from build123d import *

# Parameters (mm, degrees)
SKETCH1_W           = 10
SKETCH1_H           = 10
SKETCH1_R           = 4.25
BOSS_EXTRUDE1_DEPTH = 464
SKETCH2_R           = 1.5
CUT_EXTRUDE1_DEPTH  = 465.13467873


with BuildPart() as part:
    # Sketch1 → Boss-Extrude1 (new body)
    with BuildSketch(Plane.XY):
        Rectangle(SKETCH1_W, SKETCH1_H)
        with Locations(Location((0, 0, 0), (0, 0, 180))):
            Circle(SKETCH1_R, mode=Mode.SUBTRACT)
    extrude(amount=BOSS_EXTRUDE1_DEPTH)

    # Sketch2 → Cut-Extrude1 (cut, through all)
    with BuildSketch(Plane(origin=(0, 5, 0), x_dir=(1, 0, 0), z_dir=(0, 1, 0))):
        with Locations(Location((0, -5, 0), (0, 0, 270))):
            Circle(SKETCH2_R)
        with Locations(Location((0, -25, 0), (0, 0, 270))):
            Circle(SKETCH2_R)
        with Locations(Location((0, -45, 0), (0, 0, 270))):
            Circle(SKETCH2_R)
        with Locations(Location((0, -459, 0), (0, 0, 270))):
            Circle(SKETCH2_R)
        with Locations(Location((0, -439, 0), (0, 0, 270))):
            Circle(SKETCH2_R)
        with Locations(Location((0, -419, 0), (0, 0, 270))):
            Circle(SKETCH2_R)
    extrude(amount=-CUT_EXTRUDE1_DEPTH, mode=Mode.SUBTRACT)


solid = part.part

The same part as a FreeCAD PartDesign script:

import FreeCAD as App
import Part
import Sketcher

V = App.Vector
Q = App.Units.Quantity

doc = App.newDocument("Part")
body = doc.addObject("PartDesign::Body", "Body")

# Sketch on XY plane
sketch1 = body.newObject("Sketcher::SketchObject", "Sketch")
sketch1.AttachmentSupport = (doc.getObject("XY_Plane"), [""])
sketch1.MapMode = "FlatFace"
sketch1.addGeometry(Part.LineSegment(V(-5, 5, 0), V(-5, -5, 0)), False)
sketch1.addGeometry(Part.LineSegment(V(-5, -5, 0), V(5, -5, 0)), False)
sketch1.addGeometry(Part.LineSegment(V(5, -5, 0), V(5, 5, 0)), False)
sketch1.addGeometry(Part.LineSegment(V(5, 5, 0), V(-5, 5, 0)), False)
sketch1.addGeometry(Part.Circle(V(0, 0, 0), V(0, 0, 1), 4.2), False)
sketch1.addConstraint(Sketcher.Constraint("Coincident", 0, 2, 1, 1))
sketch1.addConstraint(Sketcher.Constraint("Coincident", 1, 2, 2, 1))
sketch1.addConstraint(Sketcher.Constraint("Coincident", 2, 2, 3, 1))
sketch1.addConstraint(Sketcher.Constraint("Coincident", 3, 2, 0, 1))
sketch1.addConstraint(Sketcher.Constraint("Vertical", 0))
sketch1.addConstraint(Sketcher.Constraint("Horizontal", 1))
sketch1.addConstraint(Sketcher.Constraint("Vertical", 2))
sketch1.addConstraint(Sketcher.Constraint("Horizontal", 3))
sketch1.addConstraint(Sketcher.Constraint("Coincident", 4, 3, -1, 1))
sketch1.addConstraint(Sketcher.Constraint("Symmetric", 0, 2, 2, 2, -1, 1))
sketch1.addConstraint(Sketcher.Constraint("Equal", 3, 0))
sketch1.addConstraint(Sketcher.Constraint("Diameter", 4, Q("8.5 mm")))
sketch1.addConstraint(Sketcher.Constraint("DistanceX", 1, 1, 1, 2, Q("10 mm")))
pad1 = body.newObject("PartDesign::Pad", "Pad")
pad1.Profile = sketch1
pad1.Length = 464

# Sketch on XZ plane
sketch2 = body.newObject("Sketcher::SketchObject", "Sketch001")
sketch2.AttachmentSupport = (doc.getObject("XZ_Plane"), [""])
sketch2.MapMode = "FlatFace"
sketch2.AttachmentOffset = App.Placement(V(0, 0, -5), App.Rotation())
sketch2.addGeometry(Part.Circle(V(0, 5, 0), V(0, 0, 1), 1.5), False)
sketch2.addGeometry(Part.Circle(V(0, 25, 0), V(0, 0, 1), 1.5), False)
sketch2.addGeometry(Part.Circle(V(0, 45, 0), V(0, 0, 1), 1.5), False)
sketch2.addGeometry(Part.Circle(V(0, 459, 0), V(0, 0, 1), 1.5), False)
sketch2.addGeometry(Part.Circle(V(0, 439, 0), V(0, 0, 1), 1.5), False)
sketch2.addGeometry(Part.Circle(V(0, 419, 0), V(0, 0, 1), 1.5), False)
sketch2.addConstraint(Sketcher.Constraint("Equal", 0, 1))
sketch2.addConstraint(Sketcher.Constraint("Equal", 1, 2))
sketch2.addConstraint(Sketcher.Constraint("Equal", 2, 3))
sketch2.addConstraint(Sketcher.Constraint("Equal", 3, 4))
sketch2.addConstraint(Sketcher.Constraint("Equal", 4, 5))
sketch2.addConstraint(Sketcher.Constraint("PointOnObject", 0, 3, -2))
sketch2.addConstraint(Sketcher.Constraint("PointOnObject", 1, 3, -2))
sketch2.addConstraint(Sketcher.Constraint("PointOnObject", 2, 3, -2))
sketch2.addConstraint(Sketcher.Constraint("PointOnObject", 3, 3, -2))
sketch2.addConstraint(Sketcher.Constraint("PointOnObject", 4, 3, -2))
sketch2.addConstraint(Sketcher.Constraint("PointOnObject", 5, 3, -2))
sketch2.addConstraint(Sketcher.Constraint("Diameter", 0, Q("3 mm")))
sketch2.addConstraint(Sketcher.Constraint("DistanceY", -1, 1, 0, 3, Q("5 mm")))
sketch2.addConstraint(Sketcher.Constraint("DistanceY", -1, 1, 1, 3, Q("25 mm")))
sketch2.addConstraint(Sketcher.Constraint("DistanceY", -1, 1, 2, 3, Q("45 mm")))
sketch2.addConstraint(Sketcher.Constraint("DistanceY", -1, 1, 3, 3, Q("459 mm")))
sketch2.addConstraint(Sketcher.Constraint("DistanceY", -1, 1, 4, 3, Q("439 mm")))
sketch2.addConstraint(Sketcher.Constraint("DistanceY", -1, 1, 5, 3, Q("419 mm")))
pocket1 = body.newObject("PartDesign::Pocket", "Pocket")
pocket1.Profile = sketch2
pocket1.Type = "ThroughAll"
pocket1.Reversed = True

doc.recompute()
